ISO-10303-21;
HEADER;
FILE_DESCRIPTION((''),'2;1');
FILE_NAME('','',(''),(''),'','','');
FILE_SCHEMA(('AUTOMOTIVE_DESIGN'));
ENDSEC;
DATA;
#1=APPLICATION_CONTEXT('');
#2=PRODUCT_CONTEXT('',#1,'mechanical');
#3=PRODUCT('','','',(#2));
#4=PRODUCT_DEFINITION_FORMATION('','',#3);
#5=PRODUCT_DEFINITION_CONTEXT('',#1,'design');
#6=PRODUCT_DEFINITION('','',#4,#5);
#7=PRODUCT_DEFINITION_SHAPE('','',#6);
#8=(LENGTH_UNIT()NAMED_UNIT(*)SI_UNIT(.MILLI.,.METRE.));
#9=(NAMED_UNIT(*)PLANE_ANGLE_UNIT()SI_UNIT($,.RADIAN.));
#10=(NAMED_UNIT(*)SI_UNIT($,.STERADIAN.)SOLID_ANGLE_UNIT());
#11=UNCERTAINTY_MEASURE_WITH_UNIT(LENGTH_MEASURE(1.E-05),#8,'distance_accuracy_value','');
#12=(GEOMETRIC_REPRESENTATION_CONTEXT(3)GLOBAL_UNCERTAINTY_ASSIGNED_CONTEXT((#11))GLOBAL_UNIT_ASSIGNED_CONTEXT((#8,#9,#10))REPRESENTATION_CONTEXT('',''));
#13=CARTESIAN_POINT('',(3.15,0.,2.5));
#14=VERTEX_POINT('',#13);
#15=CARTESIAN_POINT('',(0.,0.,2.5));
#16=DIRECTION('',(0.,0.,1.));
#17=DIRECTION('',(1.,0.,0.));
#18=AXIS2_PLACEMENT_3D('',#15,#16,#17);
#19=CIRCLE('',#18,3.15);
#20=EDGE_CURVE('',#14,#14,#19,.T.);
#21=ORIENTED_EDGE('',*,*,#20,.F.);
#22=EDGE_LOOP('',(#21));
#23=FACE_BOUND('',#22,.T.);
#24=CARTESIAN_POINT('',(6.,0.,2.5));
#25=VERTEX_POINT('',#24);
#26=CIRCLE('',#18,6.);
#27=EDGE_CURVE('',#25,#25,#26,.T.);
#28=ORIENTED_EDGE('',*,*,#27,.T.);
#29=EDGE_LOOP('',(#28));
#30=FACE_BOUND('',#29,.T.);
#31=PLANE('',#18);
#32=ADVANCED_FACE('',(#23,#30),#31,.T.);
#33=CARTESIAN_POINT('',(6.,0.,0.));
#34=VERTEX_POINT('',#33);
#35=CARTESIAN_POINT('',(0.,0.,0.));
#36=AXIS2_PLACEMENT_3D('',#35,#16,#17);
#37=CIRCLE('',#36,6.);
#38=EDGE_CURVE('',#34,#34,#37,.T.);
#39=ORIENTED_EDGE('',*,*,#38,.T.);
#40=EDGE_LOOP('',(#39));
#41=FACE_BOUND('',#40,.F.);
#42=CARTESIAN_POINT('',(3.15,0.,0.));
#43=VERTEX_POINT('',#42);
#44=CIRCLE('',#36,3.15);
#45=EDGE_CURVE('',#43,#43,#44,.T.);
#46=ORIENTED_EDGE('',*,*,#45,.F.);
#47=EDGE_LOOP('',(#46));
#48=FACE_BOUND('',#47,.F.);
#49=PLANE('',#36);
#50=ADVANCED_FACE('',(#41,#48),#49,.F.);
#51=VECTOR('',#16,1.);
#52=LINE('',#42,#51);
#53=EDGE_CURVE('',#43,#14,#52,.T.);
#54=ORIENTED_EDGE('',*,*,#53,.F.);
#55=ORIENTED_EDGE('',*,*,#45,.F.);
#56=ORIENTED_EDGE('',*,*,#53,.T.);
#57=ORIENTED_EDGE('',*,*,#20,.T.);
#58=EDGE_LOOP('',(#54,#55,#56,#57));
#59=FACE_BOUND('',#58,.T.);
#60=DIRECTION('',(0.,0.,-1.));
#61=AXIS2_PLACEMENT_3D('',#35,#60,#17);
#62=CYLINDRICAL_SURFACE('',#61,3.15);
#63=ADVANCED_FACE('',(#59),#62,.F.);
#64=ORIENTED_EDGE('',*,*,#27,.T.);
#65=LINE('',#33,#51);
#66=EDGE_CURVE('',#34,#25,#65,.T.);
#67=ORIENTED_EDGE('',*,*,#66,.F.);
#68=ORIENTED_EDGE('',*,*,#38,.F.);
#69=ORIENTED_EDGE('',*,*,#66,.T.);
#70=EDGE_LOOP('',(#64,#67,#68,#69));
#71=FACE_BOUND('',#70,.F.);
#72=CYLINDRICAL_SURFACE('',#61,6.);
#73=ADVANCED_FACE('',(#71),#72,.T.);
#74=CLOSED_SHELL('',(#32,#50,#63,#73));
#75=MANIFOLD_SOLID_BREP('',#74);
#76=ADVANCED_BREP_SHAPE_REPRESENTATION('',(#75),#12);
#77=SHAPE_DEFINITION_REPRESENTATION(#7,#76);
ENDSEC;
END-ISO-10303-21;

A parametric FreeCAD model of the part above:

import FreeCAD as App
import Part
import Sketcher

V = App.Vector

doc = App.newDocument("Part")
params = doc.addObject("Spreadsheet::Sheet", "Params")
for row, (alias, value) in enumerate([
    ("sketch1_diameter", "12 mm"),
    ("sketch1_diameter2", "6.3 mm"),
    ("pad1_length", "2.5 mm"),
], start=1):
    params.set(f"A{row}", alias)
    params.set(f"B{row}", "=" + value)
    params.setAlias(f"B{row}", alias)

body = doc.addObject("PartDesign::Body", "Body")

sketch1 = body.newObject("Sketcher::SketchObject", "Sketch")
sketch1.AttachmentSupport = (doc.getObject("XY_Plane"), [""])
sketch1.MapMode = "FlatFace"
sketch1.addGeometry([
    Part.Circle(V(0, 0, 0), V(0, 0, 1), 6),
    Part.Circle(V(0, 0, 0), V(0, 0, 1), 3.1),
], False)
sketch1.addConstraint([
    Sketcher.Constraint("Coincident", 0, 3, -1, 1),
    Sketcher.Constraint("Coincident", 1, 3, -1, 1),
    Sketcher.Constraint("Diameter", 0, 12.0),
    Sketcher.Constraint("Diameter", 1, 6.3),
])
sketch1.setExpression("Constraints[2]", "Params.sketch1_diameter")
sketch1.setExpression("Constraints[3]", "Params.sketch1_diameter2")
pad1 = body.newObject("PartDesign::Pad", "Pad")
pad1.Profile = sketch1
pad1.setExpression("Length", "Params.pad1_length")

doc.recompute()
